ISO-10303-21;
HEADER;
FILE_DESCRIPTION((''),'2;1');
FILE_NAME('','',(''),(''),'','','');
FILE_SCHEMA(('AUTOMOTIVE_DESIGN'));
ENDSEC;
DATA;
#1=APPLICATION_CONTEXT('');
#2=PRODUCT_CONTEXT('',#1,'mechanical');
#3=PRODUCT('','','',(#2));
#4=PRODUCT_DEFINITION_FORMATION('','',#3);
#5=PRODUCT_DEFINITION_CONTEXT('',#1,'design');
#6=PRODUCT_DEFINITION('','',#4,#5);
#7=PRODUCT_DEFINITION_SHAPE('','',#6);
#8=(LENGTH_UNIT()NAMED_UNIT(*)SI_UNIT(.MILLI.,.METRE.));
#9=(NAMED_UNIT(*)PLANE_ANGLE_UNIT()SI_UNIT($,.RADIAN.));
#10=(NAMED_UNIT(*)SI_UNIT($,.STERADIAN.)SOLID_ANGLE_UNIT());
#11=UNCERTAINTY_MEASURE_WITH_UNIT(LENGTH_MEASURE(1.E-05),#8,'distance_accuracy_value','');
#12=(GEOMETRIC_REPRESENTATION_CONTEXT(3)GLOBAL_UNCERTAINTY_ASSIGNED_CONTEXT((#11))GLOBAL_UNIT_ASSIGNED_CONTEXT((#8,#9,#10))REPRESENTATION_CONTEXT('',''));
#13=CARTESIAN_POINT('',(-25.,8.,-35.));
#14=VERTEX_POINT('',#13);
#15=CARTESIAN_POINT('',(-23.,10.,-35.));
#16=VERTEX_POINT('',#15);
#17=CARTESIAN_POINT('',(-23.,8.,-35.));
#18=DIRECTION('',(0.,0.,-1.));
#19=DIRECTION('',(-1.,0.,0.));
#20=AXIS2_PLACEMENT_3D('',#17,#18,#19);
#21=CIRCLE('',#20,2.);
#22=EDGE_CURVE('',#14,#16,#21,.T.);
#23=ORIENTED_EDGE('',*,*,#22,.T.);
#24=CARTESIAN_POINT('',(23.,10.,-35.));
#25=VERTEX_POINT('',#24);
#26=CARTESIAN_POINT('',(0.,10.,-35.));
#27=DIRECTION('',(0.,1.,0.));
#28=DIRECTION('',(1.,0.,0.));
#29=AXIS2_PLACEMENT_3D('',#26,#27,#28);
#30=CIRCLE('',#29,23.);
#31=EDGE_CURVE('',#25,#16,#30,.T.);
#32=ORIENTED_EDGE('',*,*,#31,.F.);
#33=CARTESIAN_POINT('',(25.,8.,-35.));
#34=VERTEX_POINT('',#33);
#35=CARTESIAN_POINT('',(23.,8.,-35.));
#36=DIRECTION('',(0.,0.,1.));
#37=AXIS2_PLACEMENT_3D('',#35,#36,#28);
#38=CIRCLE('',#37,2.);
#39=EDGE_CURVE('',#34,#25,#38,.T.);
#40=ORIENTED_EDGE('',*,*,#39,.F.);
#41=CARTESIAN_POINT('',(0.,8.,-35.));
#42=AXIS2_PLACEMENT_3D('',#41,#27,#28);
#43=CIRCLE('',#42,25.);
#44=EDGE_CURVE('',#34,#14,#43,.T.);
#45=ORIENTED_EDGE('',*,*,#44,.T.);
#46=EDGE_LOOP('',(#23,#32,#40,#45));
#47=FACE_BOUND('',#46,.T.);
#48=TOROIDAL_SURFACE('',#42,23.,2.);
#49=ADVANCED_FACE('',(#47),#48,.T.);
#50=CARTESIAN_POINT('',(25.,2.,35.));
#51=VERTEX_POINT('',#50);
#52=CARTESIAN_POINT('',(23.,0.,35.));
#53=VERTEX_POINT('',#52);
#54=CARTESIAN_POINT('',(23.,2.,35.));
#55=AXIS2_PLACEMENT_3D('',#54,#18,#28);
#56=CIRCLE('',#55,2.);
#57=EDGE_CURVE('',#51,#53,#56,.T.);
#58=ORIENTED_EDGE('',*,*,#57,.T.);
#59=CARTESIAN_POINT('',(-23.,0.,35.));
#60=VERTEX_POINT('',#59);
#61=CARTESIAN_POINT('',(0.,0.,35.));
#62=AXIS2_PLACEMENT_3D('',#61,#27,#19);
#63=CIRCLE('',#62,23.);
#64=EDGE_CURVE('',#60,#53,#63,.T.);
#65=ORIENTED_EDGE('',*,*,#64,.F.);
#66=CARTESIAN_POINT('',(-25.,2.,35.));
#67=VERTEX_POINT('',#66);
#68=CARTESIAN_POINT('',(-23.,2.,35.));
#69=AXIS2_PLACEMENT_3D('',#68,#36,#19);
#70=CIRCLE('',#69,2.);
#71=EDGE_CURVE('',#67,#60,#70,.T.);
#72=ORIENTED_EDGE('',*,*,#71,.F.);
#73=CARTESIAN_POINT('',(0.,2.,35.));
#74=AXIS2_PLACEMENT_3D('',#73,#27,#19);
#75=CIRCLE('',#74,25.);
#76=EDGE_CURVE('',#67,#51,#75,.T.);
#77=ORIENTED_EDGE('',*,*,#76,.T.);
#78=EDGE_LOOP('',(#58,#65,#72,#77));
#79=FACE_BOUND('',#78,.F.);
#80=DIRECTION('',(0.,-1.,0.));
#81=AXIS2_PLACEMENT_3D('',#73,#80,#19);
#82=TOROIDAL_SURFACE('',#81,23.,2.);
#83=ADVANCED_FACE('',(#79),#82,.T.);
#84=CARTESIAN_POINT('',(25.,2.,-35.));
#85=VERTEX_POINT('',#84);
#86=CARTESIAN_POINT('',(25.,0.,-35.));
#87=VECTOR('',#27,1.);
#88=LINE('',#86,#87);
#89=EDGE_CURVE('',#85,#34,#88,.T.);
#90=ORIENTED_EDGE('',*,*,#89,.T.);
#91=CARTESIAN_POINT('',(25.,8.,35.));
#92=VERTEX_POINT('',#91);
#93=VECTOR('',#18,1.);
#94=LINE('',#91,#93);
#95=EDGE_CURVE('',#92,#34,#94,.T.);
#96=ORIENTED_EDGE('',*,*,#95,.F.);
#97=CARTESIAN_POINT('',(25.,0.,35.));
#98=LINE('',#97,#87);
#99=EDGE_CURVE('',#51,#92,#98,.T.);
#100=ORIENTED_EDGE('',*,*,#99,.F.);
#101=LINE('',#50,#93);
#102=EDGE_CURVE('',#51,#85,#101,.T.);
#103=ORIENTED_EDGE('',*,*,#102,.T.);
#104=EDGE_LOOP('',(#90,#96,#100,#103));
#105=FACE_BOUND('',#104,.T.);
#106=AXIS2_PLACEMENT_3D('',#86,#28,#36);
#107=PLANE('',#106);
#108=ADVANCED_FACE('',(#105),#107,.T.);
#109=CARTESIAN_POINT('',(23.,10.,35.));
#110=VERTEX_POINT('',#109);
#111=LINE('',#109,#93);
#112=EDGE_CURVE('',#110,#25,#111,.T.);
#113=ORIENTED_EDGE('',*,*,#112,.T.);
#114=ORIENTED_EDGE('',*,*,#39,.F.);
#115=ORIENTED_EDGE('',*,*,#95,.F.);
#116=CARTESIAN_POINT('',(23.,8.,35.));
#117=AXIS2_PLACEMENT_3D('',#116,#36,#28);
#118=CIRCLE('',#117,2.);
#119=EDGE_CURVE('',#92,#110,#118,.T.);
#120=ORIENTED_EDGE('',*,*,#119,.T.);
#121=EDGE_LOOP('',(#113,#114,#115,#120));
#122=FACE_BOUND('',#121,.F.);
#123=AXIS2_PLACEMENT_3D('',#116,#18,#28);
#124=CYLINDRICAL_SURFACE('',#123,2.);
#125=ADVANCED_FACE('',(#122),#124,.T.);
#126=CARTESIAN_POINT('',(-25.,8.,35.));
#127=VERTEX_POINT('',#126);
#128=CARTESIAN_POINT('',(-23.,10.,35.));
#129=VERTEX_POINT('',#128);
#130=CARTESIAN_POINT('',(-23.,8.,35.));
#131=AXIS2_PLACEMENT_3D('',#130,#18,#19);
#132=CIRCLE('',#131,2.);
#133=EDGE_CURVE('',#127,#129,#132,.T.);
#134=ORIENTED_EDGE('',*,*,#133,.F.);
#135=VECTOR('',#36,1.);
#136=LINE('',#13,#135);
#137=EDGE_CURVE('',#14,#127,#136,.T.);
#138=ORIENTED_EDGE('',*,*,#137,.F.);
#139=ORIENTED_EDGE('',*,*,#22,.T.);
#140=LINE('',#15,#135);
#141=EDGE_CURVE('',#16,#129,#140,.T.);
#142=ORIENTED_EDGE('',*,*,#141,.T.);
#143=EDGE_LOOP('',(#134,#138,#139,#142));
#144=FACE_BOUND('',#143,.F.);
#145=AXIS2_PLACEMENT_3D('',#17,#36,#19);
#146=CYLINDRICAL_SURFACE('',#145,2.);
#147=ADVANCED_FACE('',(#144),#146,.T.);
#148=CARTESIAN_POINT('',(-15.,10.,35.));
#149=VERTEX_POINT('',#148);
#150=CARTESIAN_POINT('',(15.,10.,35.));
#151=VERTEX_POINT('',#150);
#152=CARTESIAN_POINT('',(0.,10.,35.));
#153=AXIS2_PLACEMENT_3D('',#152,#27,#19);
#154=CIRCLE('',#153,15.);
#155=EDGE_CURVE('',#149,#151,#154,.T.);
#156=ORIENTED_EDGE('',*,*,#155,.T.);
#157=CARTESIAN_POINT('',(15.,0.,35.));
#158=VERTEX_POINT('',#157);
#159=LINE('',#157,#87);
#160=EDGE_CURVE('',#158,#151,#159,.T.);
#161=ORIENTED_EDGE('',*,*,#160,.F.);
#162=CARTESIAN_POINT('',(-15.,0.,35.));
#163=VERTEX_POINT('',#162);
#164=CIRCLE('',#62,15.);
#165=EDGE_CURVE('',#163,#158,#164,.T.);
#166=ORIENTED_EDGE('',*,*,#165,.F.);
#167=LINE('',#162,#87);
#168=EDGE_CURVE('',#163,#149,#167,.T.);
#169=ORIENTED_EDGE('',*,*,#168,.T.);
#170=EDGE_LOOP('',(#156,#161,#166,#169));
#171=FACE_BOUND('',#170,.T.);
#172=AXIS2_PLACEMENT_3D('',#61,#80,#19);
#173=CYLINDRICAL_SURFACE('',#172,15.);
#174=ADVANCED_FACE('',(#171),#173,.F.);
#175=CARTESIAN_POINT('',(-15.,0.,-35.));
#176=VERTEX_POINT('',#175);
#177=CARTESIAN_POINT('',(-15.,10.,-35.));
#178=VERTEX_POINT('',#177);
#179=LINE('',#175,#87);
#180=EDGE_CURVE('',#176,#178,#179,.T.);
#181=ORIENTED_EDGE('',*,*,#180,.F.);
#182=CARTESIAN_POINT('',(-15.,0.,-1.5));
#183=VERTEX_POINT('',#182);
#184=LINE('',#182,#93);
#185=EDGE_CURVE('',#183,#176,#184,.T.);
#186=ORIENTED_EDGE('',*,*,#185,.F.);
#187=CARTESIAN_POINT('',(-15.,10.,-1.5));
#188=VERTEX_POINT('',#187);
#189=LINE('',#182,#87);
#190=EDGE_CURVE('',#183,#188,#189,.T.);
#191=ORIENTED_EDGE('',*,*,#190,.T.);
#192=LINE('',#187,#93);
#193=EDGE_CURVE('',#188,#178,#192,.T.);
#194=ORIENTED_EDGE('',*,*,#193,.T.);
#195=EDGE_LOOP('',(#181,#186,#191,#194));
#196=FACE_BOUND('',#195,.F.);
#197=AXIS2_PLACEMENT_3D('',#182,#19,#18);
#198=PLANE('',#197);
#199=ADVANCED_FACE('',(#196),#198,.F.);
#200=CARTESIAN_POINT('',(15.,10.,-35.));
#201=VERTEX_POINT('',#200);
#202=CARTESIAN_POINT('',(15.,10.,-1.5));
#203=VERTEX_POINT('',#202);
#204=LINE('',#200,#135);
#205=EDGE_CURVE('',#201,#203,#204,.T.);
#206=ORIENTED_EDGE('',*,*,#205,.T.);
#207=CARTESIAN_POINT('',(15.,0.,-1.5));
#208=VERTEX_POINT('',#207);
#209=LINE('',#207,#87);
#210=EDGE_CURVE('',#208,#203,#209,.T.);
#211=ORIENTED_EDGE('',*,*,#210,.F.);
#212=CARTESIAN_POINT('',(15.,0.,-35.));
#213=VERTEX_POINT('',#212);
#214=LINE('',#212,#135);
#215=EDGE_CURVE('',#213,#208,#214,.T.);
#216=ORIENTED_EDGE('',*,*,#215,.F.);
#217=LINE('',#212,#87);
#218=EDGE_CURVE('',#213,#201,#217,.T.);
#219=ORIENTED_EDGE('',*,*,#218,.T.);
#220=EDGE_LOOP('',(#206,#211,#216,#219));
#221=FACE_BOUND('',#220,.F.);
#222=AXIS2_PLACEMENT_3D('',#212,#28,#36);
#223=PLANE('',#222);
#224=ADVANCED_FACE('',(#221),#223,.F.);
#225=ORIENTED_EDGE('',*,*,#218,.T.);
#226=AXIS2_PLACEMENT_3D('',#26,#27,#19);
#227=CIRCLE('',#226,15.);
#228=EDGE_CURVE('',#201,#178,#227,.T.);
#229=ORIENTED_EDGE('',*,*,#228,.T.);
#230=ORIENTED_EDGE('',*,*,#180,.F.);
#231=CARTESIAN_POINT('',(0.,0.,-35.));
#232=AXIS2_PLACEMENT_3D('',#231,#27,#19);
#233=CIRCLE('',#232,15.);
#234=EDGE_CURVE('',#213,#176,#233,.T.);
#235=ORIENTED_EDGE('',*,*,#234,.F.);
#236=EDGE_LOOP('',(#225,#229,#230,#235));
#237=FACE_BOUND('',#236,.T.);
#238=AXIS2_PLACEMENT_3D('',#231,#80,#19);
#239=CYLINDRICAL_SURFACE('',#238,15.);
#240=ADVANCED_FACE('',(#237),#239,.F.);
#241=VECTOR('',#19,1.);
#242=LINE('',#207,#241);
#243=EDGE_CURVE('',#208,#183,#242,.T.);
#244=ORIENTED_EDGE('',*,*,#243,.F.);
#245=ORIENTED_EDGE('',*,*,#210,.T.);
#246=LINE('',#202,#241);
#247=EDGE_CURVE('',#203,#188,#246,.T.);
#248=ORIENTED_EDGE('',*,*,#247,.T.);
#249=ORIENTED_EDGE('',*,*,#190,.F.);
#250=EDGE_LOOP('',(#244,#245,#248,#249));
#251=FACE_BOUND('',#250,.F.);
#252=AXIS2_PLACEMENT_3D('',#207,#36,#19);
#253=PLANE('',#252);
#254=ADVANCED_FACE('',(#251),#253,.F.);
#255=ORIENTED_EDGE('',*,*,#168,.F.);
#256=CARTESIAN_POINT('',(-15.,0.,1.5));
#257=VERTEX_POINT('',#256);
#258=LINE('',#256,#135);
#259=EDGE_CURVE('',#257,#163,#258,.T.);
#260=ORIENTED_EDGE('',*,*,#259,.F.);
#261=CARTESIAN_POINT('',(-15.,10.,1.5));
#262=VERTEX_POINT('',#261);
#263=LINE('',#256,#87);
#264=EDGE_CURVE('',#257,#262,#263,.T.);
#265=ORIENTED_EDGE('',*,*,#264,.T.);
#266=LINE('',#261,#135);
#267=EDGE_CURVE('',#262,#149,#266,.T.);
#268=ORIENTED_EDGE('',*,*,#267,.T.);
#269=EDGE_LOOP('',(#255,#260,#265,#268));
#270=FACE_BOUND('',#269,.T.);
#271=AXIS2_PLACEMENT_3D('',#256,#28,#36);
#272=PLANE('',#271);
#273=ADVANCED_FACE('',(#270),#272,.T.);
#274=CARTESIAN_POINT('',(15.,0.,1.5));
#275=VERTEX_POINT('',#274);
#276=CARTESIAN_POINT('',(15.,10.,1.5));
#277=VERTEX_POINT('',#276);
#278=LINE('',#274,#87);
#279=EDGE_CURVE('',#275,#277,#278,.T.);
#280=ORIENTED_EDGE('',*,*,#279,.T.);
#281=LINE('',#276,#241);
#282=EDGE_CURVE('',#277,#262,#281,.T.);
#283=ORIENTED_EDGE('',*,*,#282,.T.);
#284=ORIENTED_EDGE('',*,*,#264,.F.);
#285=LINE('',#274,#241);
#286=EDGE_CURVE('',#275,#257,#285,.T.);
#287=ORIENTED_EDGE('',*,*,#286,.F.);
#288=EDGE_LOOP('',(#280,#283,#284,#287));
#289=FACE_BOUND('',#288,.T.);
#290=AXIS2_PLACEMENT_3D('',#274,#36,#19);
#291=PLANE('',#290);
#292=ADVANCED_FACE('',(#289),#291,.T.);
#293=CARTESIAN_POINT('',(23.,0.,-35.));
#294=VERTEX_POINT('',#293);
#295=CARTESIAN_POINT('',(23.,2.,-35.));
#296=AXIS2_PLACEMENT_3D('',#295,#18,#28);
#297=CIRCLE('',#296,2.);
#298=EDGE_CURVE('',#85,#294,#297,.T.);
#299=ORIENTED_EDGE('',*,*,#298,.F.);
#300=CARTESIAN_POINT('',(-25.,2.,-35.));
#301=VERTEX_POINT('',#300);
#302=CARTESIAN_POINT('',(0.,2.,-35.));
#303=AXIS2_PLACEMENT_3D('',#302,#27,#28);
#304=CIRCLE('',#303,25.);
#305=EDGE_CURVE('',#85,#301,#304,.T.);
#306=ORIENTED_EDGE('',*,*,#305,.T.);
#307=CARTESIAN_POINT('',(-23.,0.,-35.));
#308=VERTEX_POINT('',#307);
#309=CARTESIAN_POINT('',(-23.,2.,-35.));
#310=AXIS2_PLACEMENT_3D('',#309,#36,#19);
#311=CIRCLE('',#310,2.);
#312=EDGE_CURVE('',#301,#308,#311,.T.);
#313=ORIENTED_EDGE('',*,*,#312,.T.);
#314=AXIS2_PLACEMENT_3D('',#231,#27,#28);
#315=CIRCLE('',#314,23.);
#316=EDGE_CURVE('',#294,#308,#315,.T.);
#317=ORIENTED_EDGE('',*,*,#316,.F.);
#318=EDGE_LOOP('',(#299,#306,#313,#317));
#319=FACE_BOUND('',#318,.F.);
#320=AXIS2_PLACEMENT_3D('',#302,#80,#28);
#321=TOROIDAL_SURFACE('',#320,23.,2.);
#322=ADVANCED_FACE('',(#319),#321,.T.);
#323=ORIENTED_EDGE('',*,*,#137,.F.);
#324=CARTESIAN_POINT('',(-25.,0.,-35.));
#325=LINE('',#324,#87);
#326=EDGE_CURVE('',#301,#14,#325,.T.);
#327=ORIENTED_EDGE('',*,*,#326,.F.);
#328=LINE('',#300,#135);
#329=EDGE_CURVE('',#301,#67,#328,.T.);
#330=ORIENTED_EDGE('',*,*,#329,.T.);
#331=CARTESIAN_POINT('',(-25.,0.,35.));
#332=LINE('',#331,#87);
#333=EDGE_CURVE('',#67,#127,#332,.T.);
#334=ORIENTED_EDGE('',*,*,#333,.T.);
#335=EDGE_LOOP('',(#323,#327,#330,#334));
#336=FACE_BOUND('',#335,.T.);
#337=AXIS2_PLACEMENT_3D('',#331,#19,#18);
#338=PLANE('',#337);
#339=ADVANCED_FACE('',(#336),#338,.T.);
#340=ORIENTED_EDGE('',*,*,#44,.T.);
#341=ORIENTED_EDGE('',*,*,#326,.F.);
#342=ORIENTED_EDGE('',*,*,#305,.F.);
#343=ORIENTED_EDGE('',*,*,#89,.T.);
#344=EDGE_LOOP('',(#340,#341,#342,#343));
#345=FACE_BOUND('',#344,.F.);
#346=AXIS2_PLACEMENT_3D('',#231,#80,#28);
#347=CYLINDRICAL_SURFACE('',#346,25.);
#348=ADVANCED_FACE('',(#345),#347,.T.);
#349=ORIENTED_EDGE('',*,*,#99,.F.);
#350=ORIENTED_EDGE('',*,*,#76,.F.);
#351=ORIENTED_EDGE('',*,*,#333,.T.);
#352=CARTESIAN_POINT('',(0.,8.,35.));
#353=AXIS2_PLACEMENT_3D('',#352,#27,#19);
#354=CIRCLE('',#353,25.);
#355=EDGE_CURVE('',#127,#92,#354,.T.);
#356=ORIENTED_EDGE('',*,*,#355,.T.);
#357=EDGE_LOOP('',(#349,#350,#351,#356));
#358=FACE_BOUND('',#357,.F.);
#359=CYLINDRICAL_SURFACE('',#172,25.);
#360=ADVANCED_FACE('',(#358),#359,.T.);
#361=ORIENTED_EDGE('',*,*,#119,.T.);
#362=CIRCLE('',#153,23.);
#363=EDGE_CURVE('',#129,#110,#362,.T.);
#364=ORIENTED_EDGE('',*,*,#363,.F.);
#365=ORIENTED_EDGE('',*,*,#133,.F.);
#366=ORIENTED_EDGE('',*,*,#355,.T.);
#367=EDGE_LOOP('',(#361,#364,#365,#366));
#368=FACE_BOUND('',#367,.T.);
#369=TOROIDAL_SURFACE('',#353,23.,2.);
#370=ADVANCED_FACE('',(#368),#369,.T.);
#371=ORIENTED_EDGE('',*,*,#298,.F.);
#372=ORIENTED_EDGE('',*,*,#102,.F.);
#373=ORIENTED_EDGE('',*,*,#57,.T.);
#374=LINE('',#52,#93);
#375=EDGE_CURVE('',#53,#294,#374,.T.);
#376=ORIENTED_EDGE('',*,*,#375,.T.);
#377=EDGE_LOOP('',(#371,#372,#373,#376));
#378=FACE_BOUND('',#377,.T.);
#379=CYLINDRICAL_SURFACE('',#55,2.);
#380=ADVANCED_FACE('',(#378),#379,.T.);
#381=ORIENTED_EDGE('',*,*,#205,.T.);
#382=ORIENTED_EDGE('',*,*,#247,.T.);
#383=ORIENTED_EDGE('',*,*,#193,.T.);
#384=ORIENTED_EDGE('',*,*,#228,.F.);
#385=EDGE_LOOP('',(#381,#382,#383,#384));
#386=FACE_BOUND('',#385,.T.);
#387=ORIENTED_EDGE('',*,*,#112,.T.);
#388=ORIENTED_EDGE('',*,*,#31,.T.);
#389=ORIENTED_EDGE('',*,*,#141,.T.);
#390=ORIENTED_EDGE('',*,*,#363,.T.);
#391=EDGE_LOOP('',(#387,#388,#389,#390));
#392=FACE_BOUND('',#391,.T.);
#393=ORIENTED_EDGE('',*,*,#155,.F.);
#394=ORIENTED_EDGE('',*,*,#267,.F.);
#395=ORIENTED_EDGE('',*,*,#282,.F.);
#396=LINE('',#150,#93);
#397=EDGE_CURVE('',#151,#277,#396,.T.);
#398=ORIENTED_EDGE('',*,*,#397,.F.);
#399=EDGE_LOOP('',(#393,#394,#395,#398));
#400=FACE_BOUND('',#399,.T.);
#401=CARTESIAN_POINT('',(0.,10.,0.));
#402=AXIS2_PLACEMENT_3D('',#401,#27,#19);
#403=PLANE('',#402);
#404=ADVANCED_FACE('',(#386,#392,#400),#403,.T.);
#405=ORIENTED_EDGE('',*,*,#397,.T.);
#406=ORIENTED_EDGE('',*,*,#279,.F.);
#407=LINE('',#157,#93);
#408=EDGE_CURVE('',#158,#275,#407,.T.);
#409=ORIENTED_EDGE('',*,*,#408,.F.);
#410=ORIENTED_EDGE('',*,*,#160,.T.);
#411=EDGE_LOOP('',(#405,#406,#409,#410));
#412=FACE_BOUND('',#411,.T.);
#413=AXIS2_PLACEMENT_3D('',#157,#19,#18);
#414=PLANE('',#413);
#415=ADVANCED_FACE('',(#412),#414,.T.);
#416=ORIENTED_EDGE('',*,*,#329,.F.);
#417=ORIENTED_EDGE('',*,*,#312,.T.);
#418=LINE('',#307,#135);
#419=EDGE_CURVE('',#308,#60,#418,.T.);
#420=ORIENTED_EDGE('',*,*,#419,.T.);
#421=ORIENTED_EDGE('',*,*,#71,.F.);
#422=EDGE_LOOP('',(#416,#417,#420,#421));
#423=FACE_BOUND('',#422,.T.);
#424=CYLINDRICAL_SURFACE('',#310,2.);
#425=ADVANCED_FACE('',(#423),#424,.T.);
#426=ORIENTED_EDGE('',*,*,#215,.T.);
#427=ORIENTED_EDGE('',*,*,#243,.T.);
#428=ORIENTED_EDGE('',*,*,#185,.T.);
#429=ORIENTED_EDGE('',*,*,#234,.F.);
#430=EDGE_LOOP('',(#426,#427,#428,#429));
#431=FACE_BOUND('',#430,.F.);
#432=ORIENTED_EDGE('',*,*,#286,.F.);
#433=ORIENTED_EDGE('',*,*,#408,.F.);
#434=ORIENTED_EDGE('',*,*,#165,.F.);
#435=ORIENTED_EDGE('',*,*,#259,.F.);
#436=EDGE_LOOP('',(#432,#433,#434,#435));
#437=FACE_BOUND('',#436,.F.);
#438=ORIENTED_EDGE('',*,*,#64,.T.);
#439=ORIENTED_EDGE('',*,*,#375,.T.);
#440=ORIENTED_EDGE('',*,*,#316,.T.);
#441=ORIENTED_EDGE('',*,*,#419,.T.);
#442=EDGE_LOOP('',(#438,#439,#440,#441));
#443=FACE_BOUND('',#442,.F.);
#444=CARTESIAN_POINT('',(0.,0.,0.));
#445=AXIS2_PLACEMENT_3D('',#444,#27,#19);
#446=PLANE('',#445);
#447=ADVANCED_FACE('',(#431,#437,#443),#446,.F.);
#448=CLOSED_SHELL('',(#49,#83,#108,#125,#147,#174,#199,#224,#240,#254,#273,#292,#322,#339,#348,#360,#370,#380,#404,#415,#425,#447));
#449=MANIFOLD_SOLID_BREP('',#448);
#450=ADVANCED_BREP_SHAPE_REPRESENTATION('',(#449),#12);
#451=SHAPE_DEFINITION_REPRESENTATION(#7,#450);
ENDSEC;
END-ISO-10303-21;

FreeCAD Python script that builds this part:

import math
import FreeCAD as App
import Part
import Sketcher
from FreeCAD import Vector


def edges_at(feature, points):
    """Names of the edges that pass closest to the given points."""
    edges = feature.Shape.Edges
    near = lambda p: min(range(len(edges)), key=lambda i: edges[i].distToShape(Part.Vertex(*p))[0])
    return sorted({f"Edge{near(p) + 1}" for p in points})

doc = App.newDocument("Part")
body = doc.addObject("PartDesign::Body", "Body")

sketch1 = body.newObject("Sketcher::SketchObject", "Sketch")
sketch1.AttachmentSupport = (doc.getObject("XZ_Plane"), [""])
sketch1.MapMode = "FlatFace"
sketch1.addGeometry([
    Part.LineSegment(Vector(-25, -35, 0), Vector(-25, 35, 0)),
    Part.ArcOfCircle(Part.Circle(Vector(0, 35, 0), Vector(0, 0, 1), 25), math.radians(0), math.radians(180)),
    Part.LineSegment(Vector(25, 35, 0), Vector(25, -35, 0)),
    Part.ArcOfCircle(Part.Circle(Vector(0, -35, 0), Vector(0, 0, 1), 25), math.radians(180), math.radians(360)),
    Part.LineSegment(Vector(-15, -2, 0), Vector(-15, -35, 0)),
    Part.ArcOfCircle(Part.Circle(Vector(0, -35, 0), Vector(0, 0, 1), 15), math.radians(180), math.radians(360)),
    Part.LineSegment(Vector(15, -35, 0), Vector(15, -2, 0)),
    Part.LineSegment(Vector(15, -2, 0), Vector(-15, -2, 0)),
    Part.ArcOfCircle(Part.Circle(Vector(0, 35, 0), Vector(0, 0, 1), 15), math.radians(0), math.radians(180)),
    Part.LineSegment(Vector(-15, 35, 0), Vector(-15, 2, 0)),
    Part.LineSegment(Vector(-15, 2, 0), Vector(15, 2, 0)),
    Part.LineSegment(Vector(15, 2, 0), Vector(15, 35, 0)),
], False)
sketch1.addConstraint([
    Sketcher.Constraint("Tangent", 0, 2, 1, 2),
    Sketcher.Constraint("Tangent", 1, 1, 2, 1),
    Sketcher.Constraint("Tangent", 2, 2, 3, 2),
    Sketcher.Constraint("Tangent", 3, 1, 0, 1),
    Sketcher.Constraint("Tangent", 4, 2, 5, 1),
    Sketcher.Constraint("Tangent", 5, 2, 6, 1),
    Sketcher.Constraint("Coincident", 6, 2, 7, 1),
    Sketcher.Constraint("Coincident", 7, 2, 4, 1),
    Sketcher.Constraint("Tangent", 8, 2, 9, 1),
    Sketcher.Constraint("Coincident", 9, 2, 10, 1),
    Sketcher.Constraint("Coincident", 10, 2, 11, 1),
    Sketcher.Constraint("Tangent", 11, 2, 8, 1),
    Sketcher.Constraint("Vertical", 0),
    Sketcher.Constraint("Vertical", 2),
    Sketcher.Constraint("Vertical", 4),
    Sketcher.Constraint("Vertical", 6),
    Sketcher.Constraint("Horizontal", 7),
    Sketcher.Constraint("Vertical", 9),
    Sketcher.Constraint("Horizontal", 10),
    Sketcher.Constraint("Vertical", 11),
    Sketcher.Constraint("Coincident", 5, 3, 3, 3),
    Sketcher.Constraint("Coincident", 8, 3, 1, 3),
    Sketcher.Constraint("Equal", 5, 8),
    Sketcher.Constraint("Symmetric", 1, 3, 3, 3, -1, 1),
    Sketcher.Constraint("Equal", 6, 9),
    Sketcher.Constraint("Radius", 1, 25.0),
    Sketcher.Constraint("Radius", 5, 15.0),
    Sketcher.Constraint("DistanceY", 6, 2, -1, 1, 1.5),
    Sketcher.Constraint("DistanceY", 0, 1, 0, 2, 70.0),
])
pad1 = body.newObject("PartDesign::Pad", "Pad")
pad1.Profile = sketch1
pad1.Length = 10
pad1.Reversed = True
doc.recompute()

fillet = body.newObject("PartDesign::Fillet", "Fillet")
fillet.Base = (pad1, edges_at(pad1, [
    (0, 10, 60),
    (25, 10, 0),
    (0, 10, -60),
    (-25, 10, 0),
    (0, 0, -60),
    (-25, 0, 0),
    (0, 0, 60),
    (25, 0, 0),
]))
fillet.Radius = 2

doc.recompute()
